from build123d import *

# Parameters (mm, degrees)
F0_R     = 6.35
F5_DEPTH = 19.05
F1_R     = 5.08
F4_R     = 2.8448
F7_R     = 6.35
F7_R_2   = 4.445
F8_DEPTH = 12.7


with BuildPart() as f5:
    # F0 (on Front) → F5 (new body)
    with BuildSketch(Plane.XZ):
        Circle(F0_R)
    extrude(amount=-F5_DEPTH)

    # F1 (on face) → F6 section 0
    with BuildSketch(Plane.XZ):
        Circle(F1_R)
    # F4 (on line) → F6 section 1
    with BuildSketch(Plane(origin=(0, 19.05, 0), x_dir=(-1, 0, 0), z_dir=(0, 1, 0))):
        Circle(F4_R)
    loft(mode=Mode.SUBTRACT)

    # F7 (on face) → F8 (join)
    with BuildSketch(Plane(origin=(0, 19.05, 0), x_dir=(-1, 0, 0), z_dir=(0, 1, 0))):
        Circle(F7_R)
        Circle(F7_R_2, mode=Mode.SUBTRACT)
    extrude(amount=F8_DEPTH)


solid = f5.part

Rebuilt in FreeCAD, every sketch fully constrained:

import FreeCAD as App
import Part
import Sketcher

V = App.Vector
Q = App.Units.Quantity

doc = App.newDocument("Part")
body = doc.addObject("PartDesign::Body", "Body")

sketch1 = body.newObject("Sketcher::SketchObject", "Sketch")
sketch1.AttachmentSupport = (doc.getObject("XZ_Plane"), [""])
sketch1.MapMode = "FlatFace"
sketch1.addGeometry(Part.Circle(V(0, 0, 0), V(0, 0, 1), 6), False)
sketch1.addConstraint(Sketcher.Constraint("Coincident", 0, 3, -1, 1))
sketch1.addConstraint(Sketcher.Constraint("Diameter", 0, Q("0.5 in")))
pad1 = body.newObject("PartDesign::Pad", "Pad")
pad1.Profile = sketch1
pad1.Length = Q("0.75 in")
pad1.Reversed = True

sketch2 = body.newObject("Sketcher::SketchObject", "Sketch001")
sketch2.AttachmentSupport = (doc.getObject("XZ_Plane"), [""])
sketch2.MapMode = "FlatFace"
sketch2.addGeometry(Part.Circle(V(0, 0, 0), V(0, 0, 1), 5), False)
sketch2.addConstraint(Sketcher.Constraint("Coincident", 0, 3, -1, 1))
sketch2.addConstraint(Sketcher.Constraint("Diameter", 0, Q("0.4 in")))

sketch3 = body.newObject("Sketcher::SketchObject", "Sketch002")
sketch3.AttachmentSupport = (doc.getObject("XZ_Plane"), [""])
sketch3.MapMode = "FlatFace"
sketch3.AttachmentOffset = App.Placement(V(0, 0, -0.75 * 25.4), App.Rotation())
sketch3.addGeometry(Part.Circle(V(0, 0, 0), V(0, 0, 1), 2.8), False)
sketch3.addConstraint(Sketcher.Constraint("Coincident", 0, 3, -1, 1))
sketch3.addConstraint(Sketcher.Constraint("Diameter", 0, Q("0.224 in")))

subtractiveloft = body.newObject("PartDesign::SubtractiveLoft", "SubtractiveLoft")
subtractiveloft.Profile = sketch2
subtractiveloft.Sections = [sketch3]

sketch4 = body.newObject("Sketcher::SketchObject", "Sketch003")
sketch4.AttachmentSupport = (doc.getObject("XZ_Plane"), [""])
sketch4.MapMode = "FlatFace"
sketch4.AttachmentOffset = App.Placement(V(0, 0, -0.75 * 25.4), App.Rotation())
sketch4.addGeometry(Part.Circle(V(0, 0, 0), V(0, 0, 1), 6.3), False)
sketch4.addGeometry(Part.Circle(V(0, 0, 0), V(0, 0, 1), 4.4), False)
sketch4.addConstraint(Sketcher.Constraint("Coincident", 0, 3, -1, 1))
sketch4.addConstraint(Sketcher.Constraint("Coincident", 1, 3, -1, 1))
sketch4.addConstraint(Sketcher.Constraint("Diameter", 0, Q("0.5 in")))
sketch4.addConstraint(Sketcher.Constraint("Diameter", 1, Q("0.35 in")))
pad2 = body.newObject("PartDesign::Pad", "Pad001")
pad2.Profile = sketch4
pad2.Length = Q("0.5 in")
pad2.Reversed = True

doc.recompute()
